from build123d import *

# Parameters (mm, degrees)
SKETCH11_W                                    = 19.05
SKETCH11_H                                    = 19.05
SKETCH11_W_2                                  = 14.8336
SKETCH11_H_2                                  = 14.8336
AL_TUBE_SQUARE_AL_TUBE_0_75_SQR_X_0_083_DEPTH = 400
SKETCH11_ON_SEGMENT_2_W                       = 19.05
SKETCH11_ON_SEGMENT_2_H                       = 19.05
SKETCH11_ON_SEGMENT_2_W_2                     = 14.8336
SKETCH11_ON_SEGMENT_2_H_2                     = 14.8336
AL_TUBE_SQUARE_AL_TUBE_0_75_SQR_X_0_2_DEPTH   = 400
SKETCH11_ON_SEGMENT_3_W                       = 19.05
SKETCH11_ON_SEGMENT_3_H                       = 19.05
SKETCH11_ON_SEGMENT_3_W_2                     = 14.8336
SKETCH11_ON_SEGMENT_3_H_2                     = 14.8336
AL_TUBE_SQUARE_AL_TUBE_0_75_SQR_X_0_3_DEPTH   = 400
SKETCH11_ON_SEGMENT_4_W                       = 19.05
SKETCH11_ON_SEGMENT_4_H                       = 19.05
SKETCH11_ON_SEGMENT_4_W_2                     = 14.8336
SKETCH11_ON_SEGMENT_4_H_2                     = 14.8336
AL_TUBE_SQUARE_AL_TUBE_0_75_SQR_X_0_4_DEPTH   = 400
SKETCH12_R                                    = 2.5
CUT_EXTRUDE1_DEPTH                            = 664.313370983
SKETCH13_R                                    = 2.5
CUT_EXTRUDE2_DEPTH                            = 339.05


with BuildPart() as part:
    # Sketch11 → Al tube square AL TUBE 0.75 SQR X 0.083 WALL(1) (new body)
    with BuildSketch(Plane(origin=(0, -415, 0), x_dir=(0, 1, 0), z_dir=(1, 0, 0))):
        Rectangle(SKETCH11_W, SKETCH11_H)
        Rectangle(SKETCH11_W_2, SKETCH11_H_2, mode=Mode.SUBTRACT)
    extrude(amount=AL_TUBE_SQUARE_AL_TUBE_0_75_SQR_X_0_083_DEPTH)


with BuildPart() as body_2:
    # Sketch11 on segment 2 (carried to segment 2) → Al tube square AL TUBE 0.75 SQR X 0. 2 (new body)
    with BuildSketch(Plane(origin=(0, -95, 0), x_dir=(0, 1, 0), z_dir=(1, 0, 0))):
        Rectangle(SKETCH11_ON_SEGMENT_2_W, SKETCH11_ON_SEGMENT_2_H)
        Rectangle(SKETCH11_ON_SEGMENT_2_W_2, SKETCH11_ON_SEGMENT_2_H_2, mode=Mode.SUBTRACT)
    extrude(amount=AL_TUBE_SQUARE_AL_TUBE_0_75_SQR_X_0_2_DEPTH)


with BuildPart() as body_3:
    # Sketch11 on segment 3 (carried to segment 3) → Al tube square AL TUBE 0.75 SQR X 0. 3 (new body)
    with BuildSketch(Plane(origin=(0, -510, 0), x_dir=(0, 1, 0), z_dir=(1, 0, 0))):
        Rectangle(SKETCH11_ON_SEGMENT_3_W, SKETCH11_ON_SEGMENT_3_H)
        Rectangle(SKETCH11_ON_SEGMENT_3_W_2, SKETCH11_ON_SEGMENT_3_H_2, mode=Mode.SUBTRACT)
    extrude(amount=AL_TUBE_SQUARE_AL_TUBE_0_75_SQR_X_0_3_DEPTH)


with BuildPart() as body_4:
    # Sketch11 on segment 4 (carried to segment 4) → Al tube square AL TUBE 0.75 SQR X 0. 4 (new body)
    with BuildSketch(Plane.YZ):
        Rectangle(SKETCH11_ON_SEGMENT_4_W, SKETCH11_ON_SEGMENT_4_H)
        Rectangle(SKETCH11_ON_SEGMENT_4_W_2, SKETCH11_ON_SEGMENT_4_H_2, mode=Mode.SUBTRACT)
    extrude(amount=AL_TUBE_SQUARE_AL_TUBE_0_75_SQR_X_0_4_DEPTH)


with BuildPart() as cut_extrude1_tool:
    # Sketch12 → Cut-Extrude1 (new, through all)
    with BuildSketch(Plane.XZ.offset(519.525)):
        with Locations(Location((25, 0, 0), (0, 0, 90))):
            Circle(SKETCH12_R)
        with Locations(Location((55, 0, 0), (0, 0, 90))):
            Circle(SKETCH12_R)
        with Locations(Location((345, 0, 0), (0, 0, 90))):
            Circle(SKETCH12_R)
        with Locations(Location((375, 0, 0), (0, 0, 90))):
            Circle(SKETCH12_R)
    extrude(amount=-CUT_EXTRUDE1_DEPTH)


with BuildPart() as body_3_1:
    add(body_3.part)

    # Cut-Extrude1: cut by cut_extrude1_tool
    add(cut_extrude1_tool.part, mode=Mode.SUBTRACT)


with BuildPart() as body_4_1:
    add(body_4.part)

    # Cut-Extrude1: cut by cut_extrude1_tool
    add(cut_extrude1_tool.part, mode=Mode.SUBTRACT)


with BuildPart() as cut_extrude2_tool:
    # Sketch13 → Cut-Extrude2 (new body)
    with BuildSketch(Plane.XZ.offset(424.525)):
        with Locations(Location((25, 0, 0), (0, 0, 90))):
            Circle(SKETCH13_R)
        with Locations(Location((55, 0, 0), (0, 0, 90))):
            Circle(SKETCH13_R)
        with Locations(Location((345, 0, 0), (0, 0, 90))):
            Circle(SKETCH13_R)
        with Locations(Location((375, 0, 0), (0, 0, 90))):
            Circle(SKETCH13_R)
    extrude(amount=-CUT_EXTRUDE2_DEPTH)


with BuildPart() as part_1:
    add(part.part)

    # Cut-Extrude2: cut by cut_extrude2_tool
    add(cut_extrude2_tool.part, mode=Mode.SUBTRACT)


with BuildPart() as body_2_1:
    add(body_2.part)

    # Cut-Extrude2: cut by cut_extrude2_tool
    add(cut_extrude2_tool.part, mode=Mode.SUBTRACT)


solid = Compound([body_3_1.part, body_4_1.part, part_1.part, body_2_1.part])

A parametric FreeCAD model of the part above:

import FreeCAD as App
import Part
import Sketcher

V = App.Vector

doc = App.newDocument("Part")
params = doc.addObject("Spreadsheet::Sheet", "Params")
for row, (alias, value) in enumerate([
    ("sketch1_width", "19.05 mm"),
    ("pad1_length", "400 mm"),
    ("sketch2_width", "19.05 mm"),
    ("pad2_length", "400 mm"),
    ("sketch3_width", "19.05 mm"),
    ("pad3_length", "400 mm"),
    ("sketch4_width", "19.05 mm"),
    ("pad4_length", "400 mm"),
    ("sketch5_diameter", "5 mm"),
    ("pad5_length", "664.313371 mm"),
    ("sketch6_diameter", "5 mm"),
    ("pad6_length", "339.05 mm"),
], start=1):
    params.set(f"A{row}", alias)
    params.set(f"B{row}", "=" + value)
    params.setAlias(f"B{row}", alias)

body = doc.addObject("PartDesign::Body", "Body")

# Sketch on YZ plane
sketch1 = body.newObject("Sketcher::SketchObject", "Sketch")
sketch1.AttachmentSupport = (doc.getObject("YZ_Plane"), [""])
sketch1.MapMode = "FlatFace"
sketch1.addGeometry([
    Part.LineSegment(V(-425, 10, 0), V(-425, -10, 0)),  # 0
    Part.LineSegment(V(-425, -10, 0), V(-405, -10, 0)),  # 1
    Part.LineSegment(V(-405, -10, 0), V(-405, 10, 0)),  # 2
    Part.LineSegment(V(-405, 10, 0), V(-425, 10, 0)),  # 3
    Part.LineSegment(V(-408, -7, 0), V(-422, -7, 0)),  # 4
    Part.LineSegment(V(-422, -7, 0), V(-422, 7, 0)),  # 5
    Part.LineSegment(V(-422, 7, 0), V(-408, 7, 0)),  # 6
    Part.LineSegment(V(-408, 7, 0), V(-408, -7, 0)),  # 7
], False)
sketch1.addConstraint([
    Sketcher.Constraint("Coincident", 0, 2, 1, 1),
    Sketcher.Constraint("Coincident", 1, 2, 2, 1),
    Sketcher.Constraint("Coincident", 2, 2, 3, 1),
    Sketcher.Constraint("Coincident", 3, 2, 0, 1),
    Sketcher.Constraint("Coincident", 4, 2, 5, 1),
    Sketcher.Constraint("Coincident", 5, 2, 6, 1),
    Sketcher.Constraint("Coincident", 6, 2, 7, 1),
    Sketcher.Constraint("Coincident", 7, 2, 4, 1),
    Sketcher.Constraint("Vertical", 0),
    Sketcher.Constraint("Horizontal", 1),
    Sketcher.Constraint("Vertical", 2),
    Sketcher.Constraint("Horizontal", 3),
    Sketcher.Constraint("Horizontal", 4),
    Sketcher.Constraint("Vertical", 5),
    Sketcher.Constraint("Horizontal", 6),
    Sketcher.Constraint("Vertical", 7),
    Sketcher.Constraint("Equal", 3, 0),
    Sketcher.Constraint("Equal", 6, 5),
    Sketcher.Constraint("DistanceX", 1, 1, 1, 2, 19.05),
    Sketcher.Constraint("DistanceX", 4, 2, 4, 1, 14.8336),
    Sketcher.Constraint("DistanceX", 0, 2, -1, 1, 424.525),
    Sketcher.Constraint("DistanceY", 0, 2, -1, 1, 9.525),
    Sketcher.Constraint("DistanceX", 4, 2, -1, 1, 422.4168),
    Sketcher.Constraint("DistanceY", 4, 2, -1, 1, 7.4168),
])
sketch1.setExpression("Constraints[18]", "Params.sketch1_width")
pad1 = body.newObject("PartDesign::Pad", "Pad")
pad1.Profile = sketch1
pad1.setExpression("Length", "Params.pad1_length")
body2 = doc.addObject("PartDesign::Body", "Body001")

# Sketch on YZ plane
sketch2 = body2.newObject("Sketcher::SketchObject", "Sketch001")
sketch2.AttachmentSupport = (doc.getObject("YZ_Plane001"), [""])
sketch2.MapMode = "FlatFace"
sketch2.addGeometry([
    Part.LineSegment(V(-105, 10, 0), V(-105, -10, 0)),  # 0
    Part.LineSegment(V(-105, -10, 0), V(-85, -10, 0)),  # 1
    Part.LineSegment(V(-85, -10, 0), V(-85, 10, 0)),  # 2
    Part.LineSegment(V(-85, 10, 0), V(-105, 10, 0)),  # 3
    Part.LineSegment(V(-88, -7, 0), V(-102, -7, 0)),  # 4
    Part.LineSegment(V(-102, -7, 0), V(-102, 7, 0)),  # 5
    Part.LineSegment(V(-102, 7, 0), V(-88, 7, 0)),  # 6
    Part.LineSegment(V(-88, 7, 0), V(-88, -7, 0)),  # 7
], False)
sketch2.addConstraint([
    Sketcher.Constraint("Coincident", 0, 2, 1, 1),
    Sketcher.Constraint("Coincident", 1, 2, 2, 1),
    Sketcher.Constraint("Coincident", 2, 2, 3, 1),
    Sketcher.Constraint("Coincident", 3, 2, 0, 1),
    Sketcher.Constraint("Coincident", 4, 2, 5, 1),
    Sketcher.Constraint("Coincident", 5, 2, 6, 1),
    Sketcher.Constraint("Coincident", 6, 2, 7, 1),
    Sketcher.Constraint("Coincident", 7, 2, 4, 1),
    Sketcher.Constraint("Vertical", 0),
    Sketcher.Constraint("Horizontal", 1),
    Sketcher.Constraint("Vertical", 2),
    Sketcher.Constraint("Horizontal", 3),
    Sketcher.Constraint("Horizontal", 4),
    Sketcher.Constraint("Vertical", 5),
    Sketcher.Constraint("Horizontal", 6),
    Sketcher.Constraint("Vertical", 7),
    Sketcher.Constraint("Equal", 3, 0),
    Sketcher.Constraint("Equal", 6, 5),
    Sketcher.Constraint("DistanceX", 1, 1, 1, 2, 19.05),
    Sketcher.Constraint("DistanceX", 4, 2, 4, 1, 14.8336),
    Sketcher.Constraint("DistanceX", 0, 2, -1, 1, 104.525),
    Sketcher.Constraint("DistanceY", 0, 2, -1, 1, 9.525),
    Sketcher.Constraint("DistanceX", 4, 2, -1, 1, 102.4168),
    Sketcher.Constraint("DistanceY", 4, 2, -1, 1, 7.4168),
])
sketch2.setExpression("Constraints[18]", "Params.sketch2_width")
pad2 = body2.newObject("PartDesign::Pad", "Pad001")
pad2.Profile = sketch2
pad2.setExpression("Length", "Params.pad2_length")
body3 = doc.addObject("PartDesign::Body", "Body002")

# Sketch on YZ plane
sketch3 = body3.newObject("Sketcher::SketchObject", "Sketch002")
sketch3.AttachmentSupport = (doc.getObject("YZ_Plane002"), [""])
sketch3.MapMode = "FlatFace"
sketch3.addGeometry([
    Part.LineSegment(V(-520, 10, 0), V(-520, -10, 0)),  # 0
    Part.LineSegment(V(-520, -10, 0), V(-500, -10, 0)),  # 1
    Part.LineSegment(V(-500, -10, 0), V(-500, 10, 0)),  # 2
    Part.LineSegment(V(-500, 10, 0), V(-520, 10, 0)),  # 3
    Part.LineSegment(V(-503, -7, 0), V(-517, -7, 0)),  # 4
    Part.LineSegment(V(-517, -7, 0), V(-517, 7, 0)),  # 5
    Part.LineSegment(V(-517, 7, 0), V(-503, 7, 0)),  # 6
    Part.LineSegment(V(-503, 7, 0), V(-503, -7, 0)),  # 7
], False)
sketch3.addConstraint([
    Sketcher.Constraint("Coincident", 0, 2, 1, 1),
    Sketcher.Constraint("Coincident", 1, 2, 2, 1),
    Sketcher.Constraint("Coincident", 2, 2, 3, 1),
    Sketcher.Constraint("Coincident", 3, 2, 0, 1),
    Sketcher.Constraint("Coincident", 4, 2, 5, 1),
    Sketcher.Constraint("Coincident", 5, 2, 6, 1),
    Sketcher.Constraint("Coincident", 6, 2, 7, 1),
    Sketcher.Constraint("Coincident", 7, 2, 4, 1),
    Sketcher.Constraint("Vertical", 0),
    Sketcher.Constraint("Horizontal", 1),
    Sketcher.Constraint("Vertical", 2),
    Sketcher.Constraint("Horizontal", 3),
    Sketcher.Constraint("Horizontal", 4),
    Sketcher.Constraint("Vertical", 5),
    Sketcher.Constraint("Horizontal", 6),
    Sketcher.Constraint("Vertical", 7),
    Sketcher.Constraint("Equal", 3, 0),
    Sketcher.Constraint("Equal", 6, 5),
    Sketcher.Constraint("DistanceX", 1, 1, 1, 2, 19.05),
    Sketcher.Constraint("DistanceX", 4, 2, 4, 1, 14.8336),
    Sketcher.Constraint("DistanceX", 0, 2, -1, 1, 519.525),
    Sketcher.Constraint("DistanceY", 0, 2, -1, 1, 9.525),
    Sketcher.Constraint("DistanceX", 4, 2, -1, 1, 517.4168),
    Sketcher.Constraint("DistanceY", 4, 2, -1, 1, 7.4168),
])
sketch3.setExpression("Constraints[18]", "Params.sketch3_width")
pad3 = body3.newObject("PartDesign::Pad", "Pad002")
pad3.Profile = sketch3
pad3.setExpression("Length", "Params.pad3_length")
body4 = doc.addObject("PartDesign::Body", "Body003")

# Sketch on YZ plane
sketch4 = body4.newObject("Sketcher::SketchObject", "Sketch003")
sketch4.AttachmentSupport = (doc.getObject("YZ_Plane003"), [""])
sketch4.MapMode = "FlatFace"
sketch4.addGeometry([
    Part.LineSegment(V(-10, 10, 0), V(-10, -10, 0)),  # 0
    Part.LineSegment(V(-10, -10, 0), V(10, -10, 0)),  # 1
    Part.LineSegment(V(10, -10, 0), V(10, 10, 0)),  # 2
    Part.LineSegment(V(10, 10, 0), V(-10, 10, 0)),  # 3
    Part.LineSegment(V(7, -7, 0), V(-7, -7, 0)),  # 4
    Part.LineSegment(V(-7, -7, 0), V(-7, 7, 0)),  # 5
    Part.LineSegment(V(-7, 7, 0), V(7, 7, 0)),  # 6
    Part.LineSegment(V(7, 7, 0), V(7, -7, 0)),  # 7
], False)
sketch4.addConstraint([
    Sketcher.Constraint("Coincident", 0, 2, 1, 1),
    Sketcher.Constraint("Coincident", 1, 2, 2, 1),
    Sketcher.Constraint("Coincident", 2, 2, 3, 1),
    Sketcher.Constraint("Coincident", 3, 2, 0, 1),
    Sketcher.Constraint("Coincident", 4, 2, 5, 1),
    Sketcher.Constraint("Coincident", 5, 2, 6, 1),
    Sketcher.Constraint("Coincident", 6, 2, 7, 1),
    Sketcher.Constraint("Coincident", 7, 2, 4, 1),
    Sketcher.Constraint("Vertical", 0),
    Sketcher.Constraint("Horizontal", 1),
    Sketcher.Constraint("Vertical", 2),
    Sketcher.Constraint("Horizontal", 3),
    Sketcher.Constraint("Horizontal", 4),
    Sketcher.Constraint("Vertical", 5),
    Sketcher.Constraint("Horizontal", 6),
    Sketcher.Constraint("Vertical", 7),
    Sketcher.Constraint("Symmetric", 0, 2, 2, 2, -1, 1),
    Sketcher.Constraint("Symmetric", 4, 2, 6, 2, -1, 1),
    Sketcher.Constraint("Equal", 3, 0),
    Sketcher.Constraint("Equal", 6, 5),
    Sketcher.Constraint("DistanceX", 1, 1, 1, 2, 19.05),
    Sketcher.Constraint("DistanceX", 4, 2, 4, 1, 14.8336),
])
sketch4.setExpression("Constraints[20]", "Params.sketch4_width")
pad4 = body4.newObject("PartDesign::Pad", "Pad003")
pad4.Profile = sketch4
pad4.setExpression("Length", "Params.pad4_length")
body5 = doc.addObject("PartDesign::Body", "Body004")
body5.AllowCompound = True

# Sketch on XZ plane
sketch5 = body5.newObject("Sketcher::SketchObject", "Sketch004")
sketch5.AttachmentSupport = (doc.getObject("XZ_Plane004"), [""])
sketch5.MapMode = "FlatFace"
sketch5.AttachmentOffset = App.Placement(V(0, 0, 519.525), App.Rotation())
sketch5.addGeometry([
    Part.Circle(V(25, 0, 0), V(0, 0, 1), 2.5),
    Part.Circle(V(55, 0, 0), V(0, 0, 1), 2.5),
    Part.Circle(V(345, 0, 0), V(0, 0, 1), 2.5),
    Part.Circle(V(375, 0, 0), V(0, 0, 1), 2.5),
], False)
sketch5.addConstraint([
    Sketcher.Constraint("Equal", 0, 1),
    Sketcher.Constraint("Equal", 1, 2),
    Sketcher.Constraint("Equal", 2, 3),
    Sketcher.Constraint("PointOnObject", 0, 3, -1),
    Sketcher.Constraint("PointOnObject", 1, 3, -1),
    Sketcher.Constraint("PointOnObject", 2, 3, -1),
    Sketcher.Constraint("PointOnObject", 3, 3, -1),
    Sketcher.Constraint("Diameter", 0, 5.0),
    Sketcher.Constraint("DistanceX", -1, 1, 0, 3, 25.0),
    Sketcher.Constraint("DistanceX", -1, 1, 1, 3, 55.0),
    Sketcher.Constraint("DistanceX", -1, 1, 2, 3, 345.0),
    Sketcher.Constraint("DistanceX", -1, 1, 3, 3, 375.0),
])
sketch5.setExpression("Constraints[7]", "Params.sketch5_diameter")
pad5 = body5.newObject("PartDesign::Pad", "Pad004")
pad5.Profile = sketch5
pad5.setExpression("Length", "Params.pad5_length")
pad5.Reversed = True
doc.recompute()

body6 = doc.addObject("PartDesign::Body", "Body005")
body6.BaseFeature = body5
boolean = body3.newObject("PartDesign::Boolean", "Boolean")
boolean.Type = "Cut"
boolean.addObjects([body6])
doc.recompute()

boolean2 = body4.newObject("PartDesign::Boolean", "Boolean001")
boolean2.Type = "Cut"
boolean2.addObjects([body5])
body7 = doc.addObject("PartDesign::Body", "Body006")
body7.AllowCompound = True

# Sketch on XZ plane
sketch6 = body7.newObject("Sketcher::SketchObject", "Sketch005")
sketch6.AttachmentSupport = (doc.getObject("XZ_Plane006"), [""])
sketch6.MapMode = "FlatFace"
sketch6.AttachmentOffset = App.Placement(V(0, 0, 424.525), App.Rotation())
sketch6.addGeometry([
    Part.Circle(V(25, 0, 0), V(0, 0, 1), 2.5),
    Part.Circle(V(55, 0, 0), V(0, 0, 1), 2.5),
    Part.Circle(V(345, 0, 0), V(0, 0, 1), 2.5),
    Part.Circle(V(375, 0, 0), V(0, 0, 1), 2.5),
], False)
sketch6.addConstraint([
    Sketcher.Constraint("Equal", 0, 1),
    Sketcher.Constraint("Equal", 1, 2),
    Sketcher.Constraint("Equal", 2, 3),
    Sketcher.Constraint("PointOnObject", 0, 3, -1),
    Sketcher.Constraint("PointOnObject", 1, 3, -1),
    Sketcher.Constraint("PointOnObject", 2, 3, -1),
    Sketcher.Constraint("PointOnObject", 3, 3, -1),
    Sketcher.Constraint("Diameter", 0, 5.0),
    Sketcher.Constraint("DistanceX", -1, 1, 0, 3, 25.0),
    Sketcher.Constraint("DistanceX", -1, 1, 1, 3, 55.0),
    Sketcher.Constraint("DistanceX", -1, 1, 2, 3, 345.0),
    Sketcher.Constraint("DistanceX", -1, 1, 3, 3, 375.0),
])
sketch6.setExpression("Constraints[7]", "Params.sketch6_diameter")
pad6 = body7.newObject("PartDesign::Pad", "Pad005")
pad6.Profile = sketch6
pad6.setExpression("Length", "Params.pad6_length")
pad6.Reversed = True
doc.recompute()

body8 = doc.addObject("PartDesign::Body", "Body007")
body8.BaseFeature = body7
boolean3 = body.newObject("PartDesign::Boolean", "Boolean002")
boolean3.Type = "Cut"
boolean3.addObjects([body8])
doc.recompute()

boolean4 = body2.newObject("PartDesign::Boolean", "Boolean003")
boolean4.Type = "Cut"
boolean4.addObjects([body7])

doc.recompute()
